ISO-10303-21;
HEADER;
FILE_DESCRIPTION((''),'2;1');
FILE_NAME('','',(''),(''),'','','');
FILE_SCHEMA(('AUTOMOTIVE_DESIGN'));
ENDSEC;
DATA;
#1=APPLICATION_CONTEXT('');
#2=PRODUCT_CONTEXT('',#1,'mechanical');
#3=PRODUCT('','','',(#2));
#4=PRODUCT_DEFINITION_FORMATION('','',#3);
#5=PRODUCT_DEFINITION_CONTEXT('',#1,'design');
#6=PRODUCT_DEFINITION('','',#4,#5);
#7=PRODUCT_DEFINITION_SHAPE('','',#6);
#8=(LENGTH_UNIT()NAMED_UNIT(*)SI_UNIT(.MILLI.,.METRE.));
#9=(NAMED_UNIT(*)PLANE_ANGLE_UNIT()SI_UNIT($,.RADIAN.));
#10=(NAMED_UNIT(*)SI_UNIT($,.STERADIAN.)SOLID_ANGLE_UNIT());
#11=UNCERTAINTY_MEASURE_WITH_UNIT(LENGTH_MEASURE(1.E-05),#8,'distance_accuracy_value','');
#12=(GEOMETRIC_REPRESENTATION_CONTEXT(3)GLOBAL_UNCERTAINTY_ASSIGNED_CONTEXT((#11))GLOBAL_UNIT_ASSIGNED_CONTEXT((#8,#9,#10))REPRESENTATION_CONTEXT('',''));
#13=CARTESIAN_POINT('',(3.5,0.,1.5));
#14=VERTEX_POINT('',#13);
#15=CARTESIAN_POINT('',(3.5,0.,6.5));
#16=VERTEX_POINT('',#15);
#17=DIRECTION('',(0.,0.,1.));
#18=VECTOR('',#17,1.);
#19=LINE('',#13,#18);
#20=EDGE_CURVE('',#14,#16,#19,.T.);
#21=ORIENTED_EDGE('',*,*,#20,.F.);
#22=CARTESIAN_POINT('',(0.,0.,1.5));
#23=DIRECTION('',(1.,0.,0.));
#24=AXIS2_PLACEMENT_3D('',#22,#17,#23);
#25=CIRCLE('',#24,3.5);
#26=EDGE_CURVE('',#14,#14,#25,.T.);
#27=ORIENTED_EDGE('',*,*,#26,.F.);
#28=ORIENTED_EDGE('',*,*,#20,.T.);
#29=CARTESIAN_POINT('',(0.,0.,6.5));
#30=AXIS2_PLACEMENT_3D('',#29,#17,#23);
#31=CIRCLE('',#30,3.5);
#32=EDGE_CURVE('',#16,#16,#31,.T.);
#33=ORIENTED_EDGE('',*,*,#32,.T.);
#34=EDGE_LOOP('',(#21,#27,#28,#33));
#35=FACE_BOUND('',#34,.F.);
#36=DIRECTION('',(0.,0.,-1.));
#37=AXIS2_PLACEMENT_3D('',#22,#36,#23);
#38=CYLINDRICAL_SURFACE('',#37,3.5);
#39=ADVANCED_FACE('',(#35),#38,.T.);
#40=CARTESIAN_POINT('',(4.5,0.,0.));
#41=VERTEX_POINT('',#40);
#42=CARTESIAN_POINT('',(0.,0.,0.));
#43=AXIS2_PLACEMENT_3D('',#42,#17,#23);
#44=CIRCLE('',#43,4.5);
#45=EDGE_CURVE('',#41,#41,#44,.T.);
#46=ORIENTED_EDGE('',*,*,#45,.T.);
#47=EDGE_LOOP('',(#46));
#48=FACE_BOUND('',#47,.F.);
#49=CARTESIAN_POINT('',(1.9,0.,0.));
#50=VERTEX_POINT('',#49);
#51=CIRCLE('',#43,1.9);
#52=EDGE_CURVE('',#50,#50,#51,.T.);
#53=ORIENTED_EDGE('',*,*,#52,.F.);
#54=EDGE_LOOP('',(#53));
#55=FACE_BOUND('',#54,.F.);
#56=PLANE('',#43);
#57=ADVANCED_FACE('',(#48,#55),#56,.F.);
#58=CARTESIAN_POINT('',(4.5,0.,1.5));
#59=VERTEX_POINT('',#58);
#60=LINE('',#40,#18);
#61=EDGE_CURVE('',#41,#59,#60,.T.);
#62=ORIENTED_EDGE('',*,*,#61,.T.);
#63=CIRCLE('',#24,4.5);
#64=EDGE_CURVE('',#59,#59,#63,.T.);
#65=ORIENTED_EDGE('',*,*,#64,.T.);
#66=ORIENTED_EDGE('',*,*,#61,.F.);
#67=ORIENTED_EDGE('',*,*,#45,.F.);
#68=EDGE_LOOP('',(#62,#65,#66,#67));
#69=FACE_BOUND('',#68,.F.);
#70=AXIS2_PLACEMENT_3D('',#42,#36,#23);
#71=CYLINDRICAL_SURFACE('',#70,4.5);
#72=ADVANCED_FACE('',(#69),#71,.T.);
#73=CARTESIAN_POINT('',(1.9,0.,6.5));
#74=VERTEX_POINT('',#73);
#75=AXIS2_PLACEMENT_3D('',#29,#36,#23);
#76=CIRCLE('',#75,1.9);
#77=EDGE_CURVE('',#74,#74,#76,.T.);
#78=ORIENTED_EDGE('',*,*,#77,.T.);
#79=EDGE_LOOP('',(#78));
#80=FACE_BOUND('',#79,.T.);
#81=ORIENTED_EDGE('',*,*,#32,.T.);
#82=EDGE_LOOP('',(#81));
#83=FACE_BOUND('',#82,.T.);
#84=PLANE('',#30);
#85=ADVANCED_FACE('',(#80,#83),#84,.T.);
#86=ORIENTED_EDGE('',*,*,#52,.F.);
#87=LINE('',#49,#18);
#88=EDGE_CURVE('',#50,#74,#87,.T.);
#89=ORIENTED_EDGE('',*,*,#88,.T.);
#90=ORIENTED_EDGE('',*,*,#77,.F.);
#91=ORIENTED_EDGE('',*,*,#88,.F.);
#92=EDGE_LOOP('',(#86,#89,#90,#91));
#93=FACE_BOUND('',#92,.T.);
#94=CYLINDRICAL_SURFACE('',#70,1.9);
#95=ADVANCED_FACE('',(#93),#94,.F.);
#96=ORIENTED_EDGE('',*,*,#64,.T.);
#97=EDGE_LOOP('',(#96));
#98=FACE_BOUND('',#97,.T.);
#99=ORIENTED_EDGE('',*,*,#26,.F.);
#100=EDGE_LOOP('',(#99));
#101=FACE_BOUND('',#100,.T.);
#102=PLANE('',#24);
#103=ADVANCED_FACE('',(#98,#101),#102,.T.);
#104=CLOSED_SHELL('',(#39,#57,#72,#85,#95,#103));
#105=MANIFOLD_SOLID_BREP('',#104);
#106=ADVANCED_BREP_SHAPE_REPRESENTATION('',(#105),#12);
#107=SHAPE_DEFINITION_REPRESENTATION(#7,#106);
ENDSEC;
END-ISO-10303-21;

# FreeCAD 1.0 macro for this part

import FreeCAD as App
import Part
import Sketcher

V = App.Vector
Q = App.Units.Quantity

doc = App.newDocument("Part")
body = doc.addObject("PartDesign::Body", "Body")

# Sketch on XY plane
sketch1 = body.newObject("Sketcher::SketchObject", "Sketch")
sketch1.AttachmentSupport = (doc.getObject("XY_Plane"), [""])
sketch1.MapMode = "FlatFace"
sketch1.addGeometry(Part.Circle(V(0, 0, 0), V(0, 0, 1), 4.5), False)
sketch1.addConstraint([
    Sketcher.Constraint("Coincident", 0, 3, -1, 1),
    Sketcher.Constraint("Diameter", 0, Q("9 mm")),
])
pad1 = body.newObject("PartDesign::Pad", "Pad")
pad1.Profile = sketch1
pad1.Length = 1.5

# Sketch on XY plane
sketch2 = body.newObject("Sketcher::SketchObject", "Sketch001")
sketch2.AttachmentSupport = (doc.getObject("XY_Plane"), [""])
sketch2.MapMode = "FlatFace"
sketch2.AttachmentOffset = App.Placement(V(0, 0, 1.5), App.Rotation())
sketch2.addGeometry(Part.Circle(V(0, 0, 0), V(0, 0, 1), 3.5), False)
sketch2.addConstraint([
    Sketcher.Constraint("Coincident", 0, 3, -1, 1),
    Sketcher.Constraint("Diameter", 0, Q("7 mm")),
])
pad2 = body.newObject("PartDesign::Pad", "Pad001")
pad2.Profile = sketch2
pad2.Length = 5

# Sketch on XY plane
sketch3 = body.newObject("Sketcher::SketchObject", "Sketch002")
sketch3.AttachmentSupport = (doc.getObject("XY_Plane"), [""])
sketch3.MapMode = "FlatFace"
sketch3.addGeometry(Part.Circle(V(0, 0, 0), V(0, 0, 1), 1.9), False)
sketch3.addConstraint([
    Sketcher.Constraint("Coincident", 0, 3, -1, 1),
    Sketcher.Constraint("Diameter", 0, Q("3.8 mm")),
])
pocket1 = body.newObject("PartDesign::Pocket", "Pocket")
pocket1.Profile = sketch3
pocket1.Length = 25
pocket1.Reversed = True

doc.recompute()
